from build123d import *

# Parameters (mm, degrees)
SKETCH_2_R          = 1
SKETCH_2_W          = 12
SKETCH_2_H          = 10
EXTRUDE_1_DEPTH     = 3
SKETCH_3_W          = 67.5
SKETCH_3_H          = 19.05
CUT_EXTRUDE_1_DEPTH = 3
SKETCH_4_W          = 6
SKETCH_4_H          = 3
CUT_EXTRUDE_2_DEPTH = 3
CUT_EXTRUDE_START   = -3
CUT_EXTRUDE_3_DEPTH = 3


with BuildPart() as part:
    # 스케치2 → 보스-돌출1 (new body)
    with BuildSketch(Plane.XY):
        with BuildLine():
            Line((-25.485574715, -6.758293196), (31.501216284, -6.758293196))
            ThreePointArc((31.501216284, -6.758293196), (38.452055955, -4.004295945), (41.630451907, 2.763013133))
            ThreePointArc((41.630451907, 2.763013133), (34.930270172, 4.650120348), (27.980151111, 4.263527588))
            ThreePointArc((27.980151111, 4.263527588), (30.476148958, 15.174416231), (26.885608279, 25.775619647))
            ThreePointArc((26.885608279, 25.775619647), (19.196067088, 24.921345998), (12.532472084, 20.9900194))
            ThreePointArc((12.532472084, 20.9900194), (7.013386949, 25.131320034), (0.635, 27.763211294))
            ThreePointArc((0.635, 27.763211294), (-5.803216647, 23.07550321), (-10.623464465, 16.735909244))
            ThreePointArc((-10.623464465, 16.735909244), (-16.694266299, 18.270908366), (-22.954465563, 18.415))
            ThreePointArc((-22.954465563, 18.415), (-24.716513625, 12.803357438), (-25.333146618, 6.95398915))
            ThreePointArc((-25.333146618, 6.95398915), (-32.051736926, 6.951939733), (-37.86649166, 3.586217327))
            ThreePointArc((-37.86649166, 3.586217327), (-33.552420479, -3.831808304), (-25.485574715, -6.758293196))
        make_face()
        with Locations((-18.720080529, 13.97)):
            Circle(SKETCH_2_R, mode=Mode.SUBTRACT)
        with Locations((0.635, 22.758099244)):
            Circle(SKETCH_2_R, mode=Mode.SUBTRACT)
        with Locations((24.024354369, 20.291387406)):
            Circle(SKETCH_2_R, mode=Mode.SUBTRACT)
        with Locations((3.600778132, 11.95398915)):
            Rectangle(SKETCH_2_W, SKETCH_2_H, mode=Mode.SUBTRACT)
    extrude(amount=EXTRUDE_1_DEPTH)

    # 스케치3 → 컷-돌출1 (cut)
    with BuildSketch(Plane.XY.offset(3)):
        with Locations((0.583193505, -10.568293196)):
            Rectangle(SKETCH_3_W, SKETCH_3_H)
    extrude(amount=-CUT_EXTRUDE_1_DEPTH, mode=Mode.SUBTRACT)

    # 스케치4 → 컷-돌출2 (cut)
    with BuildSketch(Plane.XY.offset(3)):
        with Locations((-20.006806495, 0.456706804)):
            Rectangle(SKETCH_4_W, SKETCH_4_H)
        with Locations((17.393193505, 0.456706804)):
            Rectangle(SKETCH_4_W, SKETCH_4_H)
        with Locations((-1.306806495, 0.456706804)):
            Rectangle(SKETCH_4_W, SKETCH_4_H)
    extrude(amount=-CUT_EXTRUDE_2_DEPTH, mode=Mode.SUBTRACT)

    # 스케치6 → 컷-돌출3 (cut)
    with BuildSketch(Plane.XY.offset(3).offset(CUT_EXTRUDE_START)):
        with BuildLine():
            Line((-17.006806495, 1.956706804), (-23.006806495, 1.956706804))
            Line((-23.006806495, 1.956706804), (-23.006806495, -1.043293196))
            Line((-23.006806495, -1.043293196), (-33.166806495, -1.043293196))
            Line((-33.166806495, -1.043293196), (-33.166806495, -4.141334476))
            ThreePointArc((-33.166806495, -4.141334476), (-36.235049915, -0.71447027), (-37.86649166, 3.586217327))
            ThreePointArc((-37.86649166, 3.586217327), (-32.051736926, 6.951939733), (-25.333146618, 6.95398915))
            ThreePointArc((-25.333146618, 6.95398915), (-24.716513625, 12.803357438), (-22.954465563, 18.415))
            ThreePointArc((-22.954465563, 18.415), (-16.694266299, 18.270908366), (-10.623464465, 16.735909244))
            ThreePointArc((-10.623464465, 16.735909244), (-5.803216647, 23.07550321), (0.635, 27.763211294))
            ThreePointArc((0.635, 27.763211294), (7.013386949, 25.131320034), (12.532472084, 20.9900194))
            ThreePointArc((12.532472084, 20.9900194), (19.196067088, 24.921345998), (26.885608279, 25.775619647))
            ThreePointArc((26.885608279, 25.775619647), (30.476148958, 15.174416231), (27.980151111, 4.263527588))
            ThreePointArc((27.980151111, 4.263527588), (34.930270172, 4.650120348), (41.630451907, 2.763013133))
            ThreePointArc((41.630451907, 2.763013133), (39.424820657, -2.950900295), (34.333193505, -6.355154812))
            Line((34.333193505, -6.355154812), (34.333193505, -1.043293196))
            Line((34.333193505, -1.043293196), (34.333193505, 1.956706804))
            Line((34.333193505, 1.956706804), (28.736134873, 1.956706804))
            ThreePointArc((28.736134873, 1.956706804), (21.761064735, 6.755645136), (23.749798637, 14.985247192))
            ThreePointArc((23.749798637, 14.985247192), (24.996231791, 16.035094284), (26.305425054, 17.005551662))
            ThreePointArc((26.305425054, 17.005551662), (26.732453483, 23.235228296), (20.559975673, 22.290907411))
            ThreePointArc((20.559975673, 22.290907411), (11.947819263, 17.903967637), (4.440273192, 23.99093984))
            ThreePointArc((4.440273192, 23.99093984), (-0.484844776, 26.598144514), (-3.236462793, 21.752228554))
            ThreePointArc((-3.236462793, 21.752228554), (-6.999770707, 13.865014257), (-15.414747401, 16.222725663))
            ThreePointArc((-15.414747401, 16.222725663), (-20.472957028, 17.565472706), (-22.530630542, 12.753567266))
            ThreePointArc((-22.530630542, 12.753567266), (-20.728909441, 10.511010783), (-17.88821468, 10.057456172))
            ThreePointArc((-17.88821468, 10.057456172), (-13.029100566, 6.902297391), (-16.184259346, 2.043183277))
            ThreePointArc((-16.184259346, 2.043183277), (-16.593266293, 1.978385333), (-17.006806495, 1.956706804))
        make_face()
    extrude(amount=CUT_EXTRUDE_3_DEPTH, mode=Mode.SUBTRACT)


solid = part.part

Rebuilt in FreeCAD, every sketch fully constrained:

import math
import FreeCAD as App
import Part
import Sketcher
from FreeCAD import Vector

doc = App.newDocument("Part")
body = doc.addObject("PartDesign::Body", "Body")

# Sketch on XY plane
sketch1 = body.newObject("Sketcher::SketchObject", "Sketch")
sketch1.AttachmentSupport = (doc.getObject("XY_Plane"), [""])
sketch1.MapMode = "FlatFace"
sketch1.addGeometry(Part.LineSegment(Vector(-25.5, -6.8, 0), Vector(31.5, -6.8, 0)), False)
sketch1.addGeometry(Part.ArcOfCircle(Part.Circle(Vector(31.5, 3.4, 0), Vector(0, 0, 1), 10.1), math.radians(-90), math.radians(-4)), False)
sketch1.addGeometry(Part.ArcOfCircle(Part.Circle(Vector(32.6, -16.4, 0), Vector(0, 0, 1), 21.2), math.radians(65), math.radians(103)), False)
sketch1.addGeometry(Part.ArcOfCircle(Part.Circle(Vector(9.9, 14.1, 0), Vector(0, 0, 1), 20.6), math.radians(-29), math.radians(35)), False)
sketch1.addGeometry(Part.ArcOfCircle(Part.Circle(Vector(25, 7.4, 0), Vector(0, 0, 1), 18.5), math.radians(84), math.radians(133)), False)
sketch1.addGeometry(Part.ArcOfCircle(Part.Circle(Vector(-6.5, 1.3, 0), Vector(0, 0, 1), 27.4), math.radians(46), math.radians(75)), False)
sketch1.addGeometry(Part.ArcOfCircle(Part.Circle(Vector(13.4, 3.5, 0), Vector(0, 0, 1), 27.4), math.radians(118), math.radians(151)), False)
sketch1.addGeometry(Part.ArcOfCircle(Part.Circle(Vector(-20.5, -9.4, 0), Vector(0, 0, 1), 27.9), math.radians(69), math.radians(95)), False)
sketch1.addGeometry(Part.ArcOfCircle(Part.Circle(Vector(4.2, 6.8, 0), Vector(0, 0, 1), 29.6), math.radians(157), math.radians(180)), False)
sketch1.addGeometry(Part.ArcOfCircle(Part.Circle(Vector(-28.7, -5.6, 0), Vector(0, 0, 1), 13), math.radians(75), math.radians(135)), False)
sketch1.addGeometry(Part.ArcOfCircle(Part.Circle(Vector(-25.5, 5.8, 0), Vector(0, 0, 1), 12.6), math.radians(-170), math.radians(-90)), False)
sketch1.addGeometry(Part.Circle(Vector(-18.7, 14, 0), Vector(0, 0, 1), 1), False)
sketch1.addGeometry(Part.LineSegment(Vector(9.6, 7, 0), Vector(-2.4, 7, 0)), False)
sketch1.addGeometry(Part.LineSegment(Vector(-2.4, 7, 0), Vector(-2.4, 17, 0)), False)
sketch1.addGeometry(Part.LineSegment(Vector(-2.4, 17, 0), Vector(9.6, 17, 0)), False)
sketch1.addGeometry(Part.LineSegment(Vector(9.6, 17, 0), Vector(9.6, 7, 0)), False)
sketch1.addGeometry(Part.Circle(Vector(0.6, 22.8, 0), Vector(0, 0, 1), 1), False)
sketch1.addGeometry(Part.Circle(Vector(24, 20.3, 0), Vector(0, 0, 1), 1), False)
sketch1.addConstraint(Sketcher.Constraint("Tangent", 0, 2, 1, 1))
sketch1.addConstraint(Sketcher.Constraint("Coincident", 1, 2, 2, 1))
sketch1.addConstraint(Sketcher.Constraint("Coincident", 2, 2, 3, 1))
sketch1.addConstraint(Sketcher.Constraint("Coincident", 3, 2, 4, 1))
sketch1.addConstraint(Sketcher.Constraint("Coincident", 4, 2, 5, 1))
sketch1.addConstraint(Sketcher.Constraint("Coincident", 5, 2, 6, 1))
sketch1.addConstraint(Sketcher.Constraint("Coincident", 6, 2, 7, 1))
sketch1.addConstraint(Sketcher.Constraint("Coincident", 7, 2, 8, 1))
sketch1.addConstraint(Sketcher.Constraint("Coincident", 8, 2, 9, 1))
sketch1.addConstraint(Sketcher.Constraint("Coincident", 9, 2, 10, 1))
sketch1.addConstraint(Sketcher.Constraint("Tangent", 10, 2, 0, 1))
sketch1.addConstraint(Sketcher.Constraint("Coincident", 12, 2, 13, 1))
sketch1.addConstraint(Sketcher.Constraint("Coincident", 13, 2, 14, 1))
sketch1.addConstraint(Sketcher.Constraint("Coincident", 14, 2, 15, 1))
sketch1.addConstraint(Sketcher.Constraint("Coincident", 15, 2, 12, 1))
sketch1.addConstraint(Sketcher.Constraint("Horizontal", 0))
sketch1.addConstraint(Sketcher.Constraint("Horizontal", 12))
sketch1.addConstraint(Sketcher.Constraint("Vertical", 13))
sketch1.addConstraint(Sketcher.Constraint("Horizontal", 14))
sketch1.addConstraint(Sketcher.Constraint("Vertical", 15))
sketch1.addConstraint(Sketcher.Constraint("Equal", 11, 16))
sketch1.addConstraint(Sketcher.Constraint("Equal", 16, 17))
sketch1.addConstraint(Sketcher.Constraint("Horizontal", 8, 2, 12, 2))
sketch1.addConstraint(Sketcher.Constraint("Vertical", 16, 3, 5, 2))
sketch1.addConstraint(Sketcher.Constraint("Diameter", 11, 2.0))
sketch1.addConstraint(Sketcher.Constraint("DistanceX", 12, 2, 12, 1, 12.0))
sketch1.addConstraint(Sketcher.Constraint("DistanceY", 13, 1, 13, 2, 10.0))
sketch1.addConstraint(Sketcher.Constraint("DistanceY", -1, 1, 11, 3, 13.97))
sketch1.addConstraint(Sketcher.Constraint("Radius", 2, 21.182869))
sketch1.addConstraint(Sketcher.Constraint("Radius", 5, 27.41177))
sketch1.addConstraint(Sketcher.Constraint("Radius", 6, 27.429968))
sketch1.addConstraint(Sketcher.Constraint("Radius", 7, 27.93307))
sketch1.addConstraint(Sketcher.Constraint("Radius", 8, 29.573109))
sketch1.addConstraint(Sketcher.Constraint("Radius", 10, 12.581359))
sketch1.addConstraint(Sketcher.Constraint("DistanceX", -1, 1, 16, 3, 0.635))
sketch1.addConstraint(Sketcher.Constraint("DistanceY", -1, 1, 7, 2, 18.415))
sketch1.addConstraint(Sketcher.Constraint("Radius", 1, 10.148644))
sketch1.addConstraint(Sketcher.Constraint("Radius", 3, 20.556126))
sketch1.addConstraint(Sketcher.Constraint("Radius", 4, 18.454547))
sketch1.addConstraint(Sketcher.Constraint("Radius", 9, 12.959976))
sketch1.addConstraint(Sketcher.Constraint("DistanceX", 7, 2, 6, 2, 12.331001))
sketch1.addConstraint(Sketcher.Constraint("DistanceX", 0, 1, 0, 2, 56.986791))
sketch1.addConstraint(Sketcher.Constraint("DistanceY", -1, 1, 16, 3, 22.758099))
sketch1.addConstraint(Sketcher.Constraint("DistanceX", 3, 3, 6, 3, 3.443901))
sketch1.addConstraint(Sketcher.Constraint("DistanceX", 7, 3, 1, 3, 51.9643))
sketch1.addConstraint(Sketcher.Constraint("DistanceY", 10, 3, 3, 3, 8.306799))
sketch1.addConstraint(Sketcher.Constraint("DistanceX", 2, 2, 1, 2, 13.650301))
sketch1.addConstraint(Sketcher.Constraint("DistanceY", 4, 2, 3, 2, 4.7856))
sketch1.addConstraint(Sketcher.Constraint("DistanceX", 12, 2, 3, 3, 12.345802))
sketch1.addConstraint(Sketcher.Constraint("DistanceY", -1, 1, 1, 3, 3.39035))
sketch1.addConstraint(Sketcher.Constraint("DistanceX", -1, 1, 3, 3, 9.94658))
sketch1.addConstraint(Sketcher.Constraint("DistanceX", -1, 1, 4, 3, 25.033248))
sketch1.addConstraint(Sketcher.Constraint("DistanceY", -1, 1, 8, 3, 6.793662))
sketch1.addConstraint(Sketcher.Constraint("DistanceY", 9, 3, -1, 1, 5.564068))
sketch1.addConstraint(Sketcher.Constraint("DistanceX", 11, 3, -1, 1, 18.720081))
sketch1.addConstraint(Sketcher.Constraint("DistanceX", -1, 1, 1, 2, 41.630452))
sketch1.addConstraint(Sketcher.Constraint("DistanceX", -1, 1, 3, 2, 26.885608))
sketch1.addConstraint(Sketcher.Constraint("DistanceY", -1, 1, 5, 2, 27.763211))
sketch1.addConstraint(Sketcher.Constraint("DistanceY", -1, 1, 8, 2, 6.953989))
sketch1.addConstraint(Sketcher.Constraint("DistanceX", 9, 2, -1, 1, 37.866492))
sketch1.addConstraint(Sketcher.Constraint("DistanceX", 17, 3, 1, 3, 7.476862))
sketch1.addConstraint(Sketcher.Constraint("DistanceY", 17, 3, 16, 3, 2.466712))
pad1 = body.newObject("PartDesign::Pad", "Pad")
pad1.Profile = sketch1
pad1.Length = 3

# Sketch on XY plane
sketch2 = body.newObject("Sketcher::SketchObject", "Sketch001")
sketch2.AttachmentSupport = (doc.getObject("XY_Plane"), [""])
sketch2.MapMode = "FlatFace"
sketch2.AttachmentOffset = App.Placement(Vector(0, 0, 3), App.Rotation())
sketch2.addGeometry(Part.LineSegment(Vector(-33, -1, 0), Vector(-33, -20, 0)), False)
sketch2.addGeometry(Part.LineSegment(Vector(-33, -20, 0), Vector(34, -20, 0)), False)
sketch2.addGeometry(Part.LineSegment(Vector(34, -20, 0), Vector(34, -1, 0)), False)
sketch2.addGeometry(Part.LineSegment(Vector(34, -1, 0), Vector(-33, -1, 0)), False)
sketch2.addConstraint(Sketcher.Constraint("Coincident", 0, 2, 1, 1))
sketch2.addConstraint(Sketcher.Constraint("Coincident", 1, 2, 2, 1))
sketch2.addConstraint(Sketcher.Constraint("Coincident", 2, 2, 3, 1))
sketch2.addConstraint(Sketcher.Constraint("Coincident", 3, 2, 0, 1))
sketch2.addConstraint(Sketcher.Constraint("Vertical", 0))
sketch2.addConstraint(Sketcher.Constraint("Horizontal", 1))
sketch2.addConstraint(Sketcher.Constraint("Vertical", 2))
sketch2.addConstraint(Sketcher.Constraint("Horizontal", 3))
sketch2.addConstraint(Sketcher.Constraint("DistanceX", 1, 1, 1, 2, 67.5))
sketch2.addConstraint(Sketcher.Constraint("DistanceY", 0, 2, 0, 1, 19.05))
sketch2.addConstraint(Sketcher.Constraint("DistanceX", 0, 2, -1, 1, 33.166806))
sketch2.addConstraint(Sketcher.Constraint("DistanceY", 0, 2, -1, 1, 20.093293))
pocket1 = body.newObject("PartDesign::Pocket", "Pocket")
pocket1.Profile = sketch2
pocket1.Length = 3

# Sketch on XY plane
sketch3 = body.newObject("Sketcher::SketchObject", "Sketch002")
sketch3.AttachmentSupport = (doc.getObject("XY_Plane"), [""])
sketch3.MapMode = "FlatFace"
sketch3.AttachmentOffset = App.Placement(Vector(0, 0, 3), App.Rotation())
sketch3.addGeometry(Part.LineSegment(Vector(-23, 2, 0), Vector(-23, -1, 0)), False)
sketch3.addGeometry(Part.LineSegment(Vector(-23, -1, 0), Vector(-17, -1, 0)), False)
sketch3.addGeometry(Part.LineSegment(Vector(-17, -1, 0), Vector(-17, 2, 0)), False)
sketch3.addGeometry(Part.LineSegment(Vector(-17, 2, 0), Vector(-23, 2, 0)), False)
sketch3.addGeometry(Part.LineSegment(Vector(14.4, 2, 0), Vector(14.4, -1, 0)), False)
sketch3.addGeometry(Part.LineSegment(Vector(14.4, -1, 0), Vector(20.4, -1, 0)), False)
sketch3.addGeometry(Part.LineSegment(Vector(20.4, -1, 0), Vector(20.4, 2, 0)), False)
sketch3.addGeometry(Part.LineSegment(Vector(20.4, 2, 0), Vector(14.4, 2, 0)), False)
sketch3.addGeometry(Part.LineSegment(Vector(-4.3, 2, 0), Vector(-4.3, -1, 0)), False)
sketch3.addGeometry(Part.LineSegment(Vector(-4.3, -1, 0), Vector(1.7, -1, 0)), False)
sketch3.addGeometry(Part.LineSegment(Vector(1.7, -1, 0), Vector(1.7, 2, 0)), False)
sketch3.addGeometry(Part.LineSegment(Vector(1.7, 2, 0), Vector(-4.3, 2, 0)), False)
sketch3.addConstraint(Sketcher.Constraint("Coincident", 0, 2, 1, 1))
sketch3.addConstraint(Sketcher.Constraint("Coincident", 1, 2, 2, 1))
sketch3.addConstraint(Sketcher.Constraint("Coincident", 2, 2, 3, 1))
sketch3.addConstraint(Sketcher.Constraint("Coincident", 3, 2, 0, 1))
sketch3.addConstraint(Sketcher.Constraint("Coincident", 4, 2, 5, 1))
sketch3.addConstraint(Sketcher.Constraint("Coincident", 5, 2, 6, 1))
sketch3.addConstraint(Sketcher.Constraint("Coincident", 6, 2, 7, 1))
sketch3.addConstraint(Sketcher.Constraint("Coincident", 7, 2, 4, 1))
sketch3.addConstraint(Sketcher.Constraint("Coincident", 8, 2, 9, 1))
sketch3.addConstraint(Sketcher.Constraint("Coincident", 9, 2, 10, 1))
sketch3.addConstraint(Sketcher.Constraint("Coincident", 10, 2, 11, 1))
sketch3.addConstraint(Sketcher.Constraint("Coincident", 11, 2, 8, 1))
sketch3.addConstraint(Sketcher.Constraint("Vertical", 0))
sketch3.addConstraint(Sketcher.Constraint("Horizontal", 1))
sketch3.addConstraint(Sketcher.Constraint("Vertical", 2))
sketch3.addConstraint(Sketcher.Constraint("Horizontal", 3))
sketch3.addConstraint(Sketcher.Constraint("Vertical", 4))
sketch3.addConstraint(Sketcher.Constraint("Horizontal", 5))
sketch3.addConstraint(Sketcher.Constraint("Vertical", 6))
sketch3.addConstraint(Sketcher.Constraint("Horizontal", 7))
sketch3.addConstraint(Sketcher.Constraint("Vertical", 8))
sketch3.addConstraint(Sketcher.Constraint("Horizontal", 9))
sketch3.addConstraint(Sketcher.Constraint("Vertical", 10))
sketch3.addConstraint(Sketcher.Constraint("Horizontal", 11))
sketch3.addConstraint(Sketcher.Constraint("Horizontal", 1, 2, 4, 2))
sketch3.addConstraint(Sketcher.Constraint("Horizontal", 3, 2, 6, 2))
sketch3.addConstraint(Sketcher.Constraint("Horizontal", 5, 2, 8, 2))
sketch3.addConstraint(Sketcher.Constraint("Horizontal", 7, 2, 10, 2))
sketch3.addConstraint(Sketcher.Constraint("Equal", 3, 5))
sketch3.addConstraint(Sketcher.Constraint("Equal", 7, 9))
sketch3.addConstraint(Sketcher.Constraint("DistanceX", 1, 1, 1, 2, 6.0))
sketch3.addConstraint(Sketcher.Constraint("DistanceY", 0, 2, 0, 1, 3.0))
sketch3.addConstraint(Sketcher.Constraint("DistanceX", 1, 2, 4, 2, 31.4))
sketch3.addConstraint(Sketcher.Constraint("DistanceX", 1, 2, 8, 2, 12.7))
sketch3.addConstraint(Sketcher.Constraint("DistanceX", 0, 2, -1, 1, 23.006806))
sketch3.addConstraint(Sketcher.Constraint("DistanceY", 0, 2, -1, 1, 1.043293))
pocket2 = body.newObject("PartDesign::Pocket", "Pocket001")
pocket2.Profile = sketch3
pocket2.Length = 3

# Sketch on XY plane
sketch4 = body.newObject("Sketcher::SketchObject", "Sketch003")
sketch4.AttachmentSupport = (doc.getObject("XY_Plane"), [""])
sketch4.MapMode = "FlatFace"
sketch4.addGeometry(Part.LineSegment(Vector(-23.006806, 1.956707, 0), Vector(-17.006806, 1.956707, 0)), False)
sketch4.addGeometry(Part.ArcOfCircle(Part.Circle(Vector(-17.006807, 5.911898, 0), Vector(0, 0, 1), 3.955191), math.radians(-90), math.radians(-77.996792)), False)
sketch4.addGeometry(Part.ArcOfCircle(Part.Circle(Vector(-17.036237, 6.05032, 0), Vector(0, 0, 1), 4.096707), math.radians(-77.996792), math.radians(102.003208)), False)
sketch4.addGeometry(Part.ArcOfCircle(Part.Circle(Vector(-18.720081, 13.97, 0), Vector(0, 0, 1), 4), math.radians(-162.295482), math.radians(-77.996792)), False)
sketch4.addGeometry(Part.ArcOfCircle(Part.Circle(Vector(-18.720081, 13.97, 0), Vector(0, 0, 1), 4), math.radians(34.276101), math.radians(197.704518)), False)
sketch4.addGeometry(Part.ArcOfCircle(Part.Circle(Vector(-9.805937, 20.045369, 0), Vector(0, 0, 1), 6.787589), math.radians(-145.723899), math.radians(14.564378)), False)
sketch4.addGeometry(Part.ArcOfCircle(Part.Circle(Vector(0.635, 22.758099, 0), Vector(0, 0, 1), 4), math.radians(17.951399), math.radians(194.564378)), False)
sketch4.addGeometry(Part.ArcOfCircle(Part.Circle(Vector(12.878074, 26.724637, 0), Vector(0, 0, 1), 8.869587), math.radians(-162.048601), math.radians(-29.992061)), False)
sketch4.addGeometry(Part.ArcOfCircle(Part.Circle(Vector(24.024354, 20.291387, 0), Vector(0, 0, 1), 4), math.radians(-55.231107), math.radians(150.007939)), False)
sketch4.addGeometry(Part.ArcOfCircle(Part.Circle(Vector(41.270777, -4.551732, 0), Vector(0, 0, 1), 26.24268), math.radians(124.768893), math.radians(131.886105)), False)
sketch4.addGeometry(Part.ArcOfCircle(Part.Circle(Vector(28.736135, 9.425172, 0), Vector(0, 0, 1), 7.468466), math.radians(131.886105), math.radians(270)), False)
sketch4.addGeometry(Part.LineSegment(Vector(28.736135, 1.956707, 0), Vector(34.333194, 1.956707, 0)), False)
sketch4.addGeometry(Part.LineSegment(Vector(34.333194, 1.956707, 0), Vector(34.333194, -6.355155, 0)), False)
sketch4.addGeometry(Part.ArcOfCircle(Part.Circle(Vector(31.501216, 3.39035, 0), Vector(0, 0, 1), 10.148644), math.radians(-73.796496), math.radians(-3.543991)), False)
sketch4.addGeometry(Part.ArcOfCircle(Part.Circle(Vector(32.615678, -16.405914, 0), Vector(0, 0, 1), 21.182869), math.radians(64.81331), math.radians(102.640542)), False)
sketch4.addGeometry(Part.ArcOfCircle(Part.Circle(Vector(9.94658, 14.129865, 0), Vector(0, 0, 1), 20.556126), math.radians(-28.683485), math.radians(34.50892)), False)
sketch4.addGeometry(Part.ArcOfCircle(Part.Circle(Vector(25.033248, 7.414272, 0), Vector(0, 0, 1), 18.454547), math.radians(84.239283), math.radians(132.639392)), False)
sketch4.addGeometry(Part.ArcOfCircle(Part.Circle(Vector(-6.548358, 1.309393, 0), Vector(0, 0, 1), 27.41177), math.radians(45.886526), math.radians(74.808039)), False)
sketch4.addGeometry(Part.ArcOfCircle(Part.Circle(Vector(13.39048, 3.479454, 0), Vector(0, 0, 1), 27.429968), math.radians(117.711508), math.radians(151.099916)), False)
sketch4.addGeometry(Part.ArcOfCircle(Part.Circle(Vector(-20.463083, -9.406743, 0), Vector(0, 0, 1), 27.93307), math.radians(69.374575), math.radians(95.117075)), False)
sketch4.addGeometry(Part.ArcOfCircle(Part.Circle(Vector(4.239528, 6.793662, 0), Vector(0, 0, 1), 29.573109), math.radians(156.860585), math.radians(179.689376)), False)
sketch4.addGeometry(Part.ArcOfCircle(Part.Circle(Vector(-28.688624, -5.564068, 0), Vector(0, 0, 1), 12.959976), math.radians(74.994561), math.radians(135.086225)), False)
sketch4.addGeometry(Part.ArcOfCircle(Part.Circle(Vector(-25.485575, 5.823066, 0), Vector(0, 0, 1), 12.581359), math.radians(-169.7589), math.radians(-127.627459)), False)
sketch4.addGeometry(Part.LineSegment(Vector(-33.166806, -4.141334, 0), Vector(-33.166806, -1.043293, 0)), False)
sketch4.addGeometry(Part.LineSegment(Vector(-33.166806, -1.043293, 0), Vector(-23.006806, -1.043293, 0)), False)
sketch4.addGeometry(Part.LineSegment(Vector(-23.006806, -1.043293, 0), Vector(-23.006806, 1.956707, 0)), False)
sketch4.addConstraint(Sketcher.Constraint("Coincident", 0, 2, 1, 1))
sketch4.addConstraint(Sketcher.Constraint("Coincident", 1, 2, 2, 1))
sketch4.addConstraint(Sketcher.Constraint("Coincident", 2, 2, 3, 2))
sketch4.addConstraint(Sketcher.Constraint("Coincident", 3, 1, 4, 2))
sketch4.addConstraint(Sketcher.Constraint("Coincident", 4, 1, 5, 1))
sketch4.addConstraint(Sketcher.Constraint("Coincident", 5, 2, 6, 2))
sketch4.addConstraint(Sketcher.Constraint("Coincident", 6, 1, 7, 1))
sketch4.addConstraint(Sketcher.Constraint("Coincident", 7, 2, 8, 2))
sketch4.addConstraint(Sketcher.Constraint("Coincident", 8, 1, 9, 1))
sketch4.addConstraint(Sketcher.Constraint("Coincident", 9, 2, 10, 1))
sketch4.addConstraint(Sketcher.Constraint("Coincident", 10, 2, 11, 1))
sketch4.addConstraint(Sketcher.Constraint("Coincident", 11, 2, 12, 1))
sketch4.addConstraint(Sketcher.Constraint("Coincident", 12, 2, 13, 1))
sketch4.addConstraint(Sketcher.Constraint("Coincident", 13, 2, 14, 1))
sketch4.addConstraint(Sketcher.Constraint("Coincident", 14, 2, 15, 1))
sketch4.addConstraint(Sketcher.Constraint("Coincident", 15, 2, 16, 1))
sketch4.addConstraint(Sketcher.Constraint("Coincident", 16, 2, 17, 1))
sketch4.addConstraint(Sketcher.Constraint("Coincident", 17, 2, 18, 1))
sketch4.addConstraint(Sketcher.Constraint("Coincident", 18, 2, 19, 1))
sketch4.addConstraint(Sketcher.Constraint("Coincident", 19, 2, 20, 1))
sketch4.addConstraint(Sketcher.Constraint("Coincident", 20, 2, 21, 1))
sketch4.addConstraint(Sketcher.Constraint("Coincident", 21, 2, 22, 1))
sketch4.addConstraint(Sketcher.Constraint("Coincident", 22, 2, 23, 1))
sketch4.addConstraint(Sketcher.Constraint("Coincident", 23, 2, 24, 1))
sketch4.addConstraint(Sketcher.Constraint("Coincident", 24, 2, 25, 1))
sketch4.addConstraint(Sketcher.Constraint("Coincident", 25, 2, 0, 1))
sketch4.addConstraint(Sketcher.Constraint("Horizontal", 0))
sketch4.addConstraint(Sketcher.Constraint("Horizontal", 11))
sketch4.addConstraint(Sketcher.Constraint("Vertical", 12))
sketch4.addConstraint(Sketcher.Constraint("Vertical", 23))
sketch4.addConstraint(Sketcher.Constraint("Horizontal", 24))
sketch4.addConstraint(Sketcher.Constraint("Vertical", 25))
sketch4.addConstraint(Sketcher.Constraint("Coincident", 4, 3, 3, 3))
sketch4.addConstraint(Sketcher.Constraint("Radius", 3, 4.0))
sketch4.addConstraint(Sketcher.Constraint("Radius", 6, 4.0))
sketch4.addConstraint(Sketcher.Constraint("Radius", 8, 4.0))
sketch4.addConstraint(Sketcher.Constraint("DistanceX", 0, 1, 0, 2, 6.0))
sketch4.addConstraint(Sketcher.Constraint("DistanceY", 25, 1, 25, 2, 3.0))
sketch4.addConstraint(Sketcher.Constraint("DistanceX", 24, 1, 24, 2, 10.16))
sketch4.addConstraint(Sketcher.Constraint("DistanceY", -1, 1, 3, 3, 13.97))
sketch4.addConstraint(Sketcher.Constraint("Radius", 1, 3.955191))
sketch4.addConstraint(Sketcher.Constraint("Radius", 5, 6.787589))
sketch4.addConstraint(Sketcher.Constraint("Radius", 9, 26.24268))
sketch4.addConstraint(Sketcher.Constraint("Radius", 14, 21.182869))
sketch4.addConstraint(Sketcher.Constraint("Radius", 17, 27.41177))
sketch4.addConstraint(Sketcher.Constraint("Radius", 18, 27.429968))
sketch4.addConstraint(Sketcher.Constraint("Radius", 19, 27.93307))
sketch4.addConstraint(Sketcher.Constraint("Radius", 20, 29.573109))
sketch4.addConstraint(Sketcher.Constraint("Radius", 22, 12.581359))
sketch4.addConstraint(Sketcher.Constraint("DistanceX", -1, 1, 6, 3, 0.635))
sketch4.addConstraint(Sketcher.Constraint("DistanceX", -1, 1, 17, 2, 0.635))
sketch4.addConstraint(Sketcher.Constraint("DistanceY", -1, 1, 19, 2, 18.415))
sketch4.addConstraint(Sketcher.Constraint("Radius", 2, 4.096707))
sketch4.addConstraint(Sketcher.Constraint("Radius", 7, 8.869587))
sketch4.addConstraint(Sketcher.Constraint("Radius", 10, 7.468466))
sketch4.addConstraint(Sketcher.Constraint("Radius", 13, 10.148644))
sketch4.addConstraint(Sketcher.Constraint("Radius", 15, 20.556126))
sketch4.addConstraint(Sketcher.Constraint("Radius", 16, 18.454547))
sketch4.addConstraint(Sketcher.Constraint("Radius", 21, 12.959976))
sketch4.addConstraint(Sketcher.Constraint("DistanceX", 18, 2, 5, 2, 7.387002))
sketch4.addConstraint(Sketcher.Constraint("DistanceX", 11, 1, 11, 2, 5.597059))
sketch4.addConstraint(Sketcher.Constraint("DistanceY", 12, 2, 12, 1, 8.311862))
sketch4.addConstraint(Sketcher.Constraint("DistanceY", 23, 1, 23, 2, 3.098041))
sketch4.addConstraint(Sketcher.Constraint("DistanceY", -1, 1, 1, 3, 5.911898))
sketch4.addConstraint(Sketcher.Constraint("DistanceY", -1, 1, 6, 3, 22.758099))
sketch4.addConstraint(Sketcher.Constraint("DistanceX", -1, 1, 9, 2, 23.749799))
sketch4.addConstraint(Sketcher.Constraint("DistanceX", 2, 3, 5, 3, 7.2303))
sketch4.addConstraint(Sketcher.Constraint("DistanceY", 9, 3, 5, 3, 24.597102))
sketch4.addConstraint(Sketcher.Constraint("DistanceX", 14, 3, 9, 3, 8.6551))
sketch4.addConstraint(Sketcher.Constraint("DistanceY", 14, 3, 8, 3, 36.697302))
sketch4.addConstraint(Sketcher.Constraint("DistanceY", 16, 3, 10, 3, 2.0109))
sketch4.addConstraint(Sketcher.Constraint("DistanceX", 15, 3, 18, 3, 3.443901))
sketch4.addConstraint(Sketcher.Constraint("DistanceX", 1, 2, 17, 3, 9.635901))
sketch4.addConstraint(Sketcher.Constraint("DistanceY", 22, 3, 3, 1, 6.930501))
sketch4.addConstraint(Sketcher.Constraint("DistanceX", 6, 1, 7, 3, 8.4378))
sketch4.addConstraint(Sketcher.Constraint("DistanceY", 13, 3, 8, 1, 13.615201))
sketch4.addConstraint(Sketcher.Constraint("DistanceX", 16, 2, 7, 3, 0.345602))
sketch4.addConstraint(Sketcher.Constraint("DistanceY", 22, 2, 22, 3, 9.9644))
sketch4.addConstraint(Sketcher.Constraint("DistanceY", -1, 1, 2, 3, 6.05032))
sketch4.addConstraint(Sketcher.Constraint("DistanceY", -1, 1, 13, 3, 3.39035))
sketch4.addConstraint(Sketcher.Constraint("DistanceX", -1, 1, 15, 3, 9.94658))
sketch4.addConstraint(Sketcher.Constraint("DistanceX", -1, 1, 16, 3, 25.033248))
sketch4.addConstraint(Sketcher.Constraint("DistanceY", -1, 1, 20, 3, 6.793662))
sketch4.addConstraint(Sketcher.Constraint("DistanceY", 21, 3, -1, 1, 5.564068))
sketch4.addConstraint(Sketcher.Constraint("DistanceX", 1, 2, -1, 1, 16.184259))
sketch4.addConstraint(Sketcher.Constraint("DistanceY", -1, 1, 5, 2, 21.752229))
sketch4.addConstraint(Sketcher.Constraint("DistanceY", -1, 1, 6, 1, 23.99094))
sketch4.addConstraint(Sketcher.Constraint("DistanceX", -1, 1, 13, 2, 41.630452))
sketch4.addConstraint(Sketcher.Constraint("DistanceX", -1, 1, 14, 2, 27.980151))
sketch4.addConstraint(Sketcher.Constraint("DistanceX", -1, 1, 15, 2, 26.885608))
sketch4.addConstraint(Sketcher.Constraint("DistanceY", -1, 1, 15, 2, 25.77562))
sketch4.addConstraint(Sketcher.Constraint("DistanceY", -1, 1, 20, 2, 6.953989))
sketch4.addConstraint(Sketcher.Constraint("DistanceX", 21, 2, -1, 1, 37.866492))
sketch4.addConstraint(Sketcher.Constraint("DistanceY", 19, 3, 1, 3, 15.318641))
sketch4.addConstraint(Sketcher.Constraint("DistanceX", 2, 2, 1, 3, 0.881408))
sketch4.addConstraint(Sketcher.Constraint("DistanceY", 2, 2, 4, 1, 6.165269))
sketch4.addConstraint(Sketcher.Constraint("DistanceX", 7, 2, 8, 3, 3.464379))
pocket3 = body.newObject("PartDesign::Pocket", "Pocket002")
pocket3.Profile = sketch4
pocket3.Length = 3
pocket3.Reversed = True

doc.recompute()
